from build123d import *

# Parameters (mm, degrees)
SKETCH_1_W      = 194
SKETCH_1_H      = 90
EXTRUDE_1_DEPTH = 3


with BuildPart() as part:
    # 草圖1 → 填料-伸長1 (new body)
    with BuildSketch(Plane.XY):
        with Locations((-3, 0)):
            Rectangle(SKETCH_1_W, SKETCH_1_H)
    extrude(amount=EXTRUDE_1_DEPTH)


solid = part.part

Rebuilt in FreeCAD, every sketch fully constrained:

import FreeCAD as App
import Part
import Sketcher
from FreeCAD import Vector
Q = App.Units.Quantity

doc = App.newDocument("Part")
body = doc.addObject("PartDesign::Body", "Body")

# Sketch on XY plane
sketch1 = doc.addObject("Sketcher::SketchObject", "Sketch")
body.addObject(sketch1)
sketch1.AttachmentSupport = (doc.XY_Plane, [""])
sketch1.MapMode = "FlatFace"
sketch1.addGeometry([
    Part.LineSegment(Vector(-100, 45, 0), Vector(-100, -45, 0)),
    Part.LineSegment(Vector(-100, -45, 0), Vector(94, -45, 0)),
    Part.LineSegment(Vector(94, -45, 0), Vector(94, 45, 0)),
    Part.LineSegment(Vector(94, 45, 0), Vector(-100, 45, 0)),
], False)
sketch1.addConstraint([
    Sketcher.Constraint("Coincident", 0, 2, 1, 1),
    Sketcher.Constraint("Coincident", 1, 2, 2, 1),
    Sketcher.Constraint("Coincident", 2, 2, 3, 1),
    Sketcher.Constraint("Coincident", 3, 2, 0, 1),
    Sketcher.Constraint("Vertical", 0),
    Sketcher.Constraint("Horizontal", 1),
    Sketcher.Constraint("Vertical", 2),
    Sketcher.Constraint("Horizontal", 3),
    Sketcher.Constraint("DistanceX", 1, 1, 1, 2, Q("194 mm")),
    Sketcher.Constraint("DistanceY", 0, 2, 0, 1, Q("90 mm")),
    Sketcher.Constraint("DistanceX", 0, 2, -1, 1, Q("100 mm")),
    Sketcher.Constraint("DistanceY", 0, 2, -1, 1, Q("45 mm")),
])
pad1 = doc.addObject("PartDesign::Pad", "Pad")
body.addObject(pad1)
pad1.Profile = sketch1
pad1.Length = 3

doc.recompute()
